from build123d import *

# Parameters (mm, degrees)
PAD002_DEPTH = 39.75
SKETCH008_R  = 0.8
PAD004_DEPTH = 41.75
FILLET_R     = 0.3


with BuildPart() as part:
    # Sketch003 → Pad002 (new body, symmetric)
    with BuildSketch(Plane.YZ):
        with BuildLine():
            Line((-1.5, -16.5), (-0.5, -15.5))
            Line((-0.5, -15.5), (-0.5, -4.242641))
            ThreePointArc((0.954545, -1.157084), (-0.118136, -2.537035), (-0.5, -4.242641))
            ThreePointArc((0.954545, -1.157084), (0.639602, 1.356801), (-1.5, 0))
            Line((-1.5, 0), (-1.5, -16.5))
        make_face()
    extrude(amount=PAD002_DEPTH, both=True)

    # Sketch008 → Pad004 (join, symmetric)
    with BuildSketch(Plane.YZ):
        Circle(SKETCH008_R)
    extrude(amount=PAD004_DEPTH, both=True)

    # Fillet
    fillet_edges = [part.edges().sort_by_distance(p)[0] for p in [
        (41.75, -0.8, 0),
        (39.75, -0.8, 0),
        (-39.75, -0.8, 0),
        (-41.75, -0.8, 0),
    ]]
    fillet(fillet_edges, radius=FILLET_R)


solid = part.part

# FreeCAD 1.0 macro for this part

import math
import FreeCAD as App
import Part
import Sketcher
Q = App.Units.Quantity


def edges_at(feature, points):
    """Names of the edges that pass closest to the given points."""
    edges = feature.Shape.Edges
    near = lambda p: min(range(len(edges)), key=lambda i: edges[i].distToShape(Part.Vertex(*p))[0])
    return sorted({f"Edge{near(p) + 1}" for p in points})

doc = App.newDocument("Part")
body = doc.addObject("PartDesign::Body", "Body")

# Sketch on YZ plane
sketch1 = body.newObject("Sketcher::SketchObject", "Sketch")
sketch1.AttachmentSupport = (doc.getObject("YZ_Plane"), [""])
sketch1.MapMode = "FlatFace"
sketch1.addGeometry([
    Part.LineSegment(App.Vector(-1.5, -16.5, 0), App.Vector(-0.5, -15.5, 0)),  # 0
    Part.LineSegment(App.Vector(-0.5, -15.5, 0), App.Vector(-0.5, -4.242641, 0)),  # 1
    Part.ArcOfCircle(Part.Circle(App.Vector(3.500002, -4.242641, 0), App.Vector(0, 0, 1), 4.000002), math.radians(129.521219), math.radians(179.999993)),  # 2
    Part.ArcOfCircle(Part.Circle(App.Vector(0, 0, 0), App.Vector(0, 0, 1), 1.5), math.radians(-50.478819), math.radians(180.000001)),  # 3
    Part.LineSegment(App.Vector(-1.5, 0, 0), App.Vector(-1.5, -16.5, 0)),  # 4
], False)
sketch1.addConstraint([
    Sketcher.Constraint("Coincident", 0, 2, 1, 1),
    Sketcher.Constraint("Tangent", 1, 2, 2, 2),
    Sketcher.Constraint("Tangent", 2, 1, 3, 1),
    Sketcher.Constraint("Tangent", 3, 2, 4, 1),
    Sketcher.Constraint("Coincident", 4, 2, 0, 1),
    Sketcher.Constraint("Vertical", 1),
    Sketcher.Constraint("Vertical", 4),
    Sketcher.Constraint("Coincident", 3, 3, -1, 1),
    Sketcher.Constraint("Radius", 3, 1.5),
    Sketcher.Constraint("Angle", 0, Q("45 deg")),
    Sketcher.Constraint("DistanceY", 4, 2, 4, 1, 16.5),
    Sketcher.Constraint("DistanceX", 3, 2, 1, 2, 1.0),
    Sketcher.Constraint("Radius", 2, 4.000002),
])
pad1 = body.newObject("PartDesign::Pad", "Pad")
pad1.Profile = sketch1
pad1.Length = 79.5
pad1.Midplane = True

# Sketch on YZ plane
sketch2 = body.newObject("Sketcher::SketchObject", "Sketch001")
sketch2.AttachmentSupport = (doc.getObject("YZ_Plane"), [""])
sketch2.MapMode = "FlatFace"
sketch2.addGeometry(Part.Circle(App.Vector(0, 0, 0), App.Vector(0, 0, 1), 0.8), False)
sketch2.addConstraint([
    Sketcher.Constraint("Coincident", 0, 3, -1, 1),
    Sketcher.Constraint("Diameter", 0, 1.6),
])
pad2 = body.newObject("PartDesign::Pad", "Pad001")
pad2.Profile = sketch2
pad2.Length = 83.5
pad2.Midplane = True
doc.recompute()

fillet = body.newObject("PartDesign::Fillet", "Fillet")
fillet.Base = (pad2, edges_at(pad2, [
    (41.75, -0.8, 0),
    (39.75, -0.8, 0),
    (-39.75, -0.8, 0),
    (-41.75, -0.8, 0),
]))
fillet.Radius = 0.3

doc.recompute()
